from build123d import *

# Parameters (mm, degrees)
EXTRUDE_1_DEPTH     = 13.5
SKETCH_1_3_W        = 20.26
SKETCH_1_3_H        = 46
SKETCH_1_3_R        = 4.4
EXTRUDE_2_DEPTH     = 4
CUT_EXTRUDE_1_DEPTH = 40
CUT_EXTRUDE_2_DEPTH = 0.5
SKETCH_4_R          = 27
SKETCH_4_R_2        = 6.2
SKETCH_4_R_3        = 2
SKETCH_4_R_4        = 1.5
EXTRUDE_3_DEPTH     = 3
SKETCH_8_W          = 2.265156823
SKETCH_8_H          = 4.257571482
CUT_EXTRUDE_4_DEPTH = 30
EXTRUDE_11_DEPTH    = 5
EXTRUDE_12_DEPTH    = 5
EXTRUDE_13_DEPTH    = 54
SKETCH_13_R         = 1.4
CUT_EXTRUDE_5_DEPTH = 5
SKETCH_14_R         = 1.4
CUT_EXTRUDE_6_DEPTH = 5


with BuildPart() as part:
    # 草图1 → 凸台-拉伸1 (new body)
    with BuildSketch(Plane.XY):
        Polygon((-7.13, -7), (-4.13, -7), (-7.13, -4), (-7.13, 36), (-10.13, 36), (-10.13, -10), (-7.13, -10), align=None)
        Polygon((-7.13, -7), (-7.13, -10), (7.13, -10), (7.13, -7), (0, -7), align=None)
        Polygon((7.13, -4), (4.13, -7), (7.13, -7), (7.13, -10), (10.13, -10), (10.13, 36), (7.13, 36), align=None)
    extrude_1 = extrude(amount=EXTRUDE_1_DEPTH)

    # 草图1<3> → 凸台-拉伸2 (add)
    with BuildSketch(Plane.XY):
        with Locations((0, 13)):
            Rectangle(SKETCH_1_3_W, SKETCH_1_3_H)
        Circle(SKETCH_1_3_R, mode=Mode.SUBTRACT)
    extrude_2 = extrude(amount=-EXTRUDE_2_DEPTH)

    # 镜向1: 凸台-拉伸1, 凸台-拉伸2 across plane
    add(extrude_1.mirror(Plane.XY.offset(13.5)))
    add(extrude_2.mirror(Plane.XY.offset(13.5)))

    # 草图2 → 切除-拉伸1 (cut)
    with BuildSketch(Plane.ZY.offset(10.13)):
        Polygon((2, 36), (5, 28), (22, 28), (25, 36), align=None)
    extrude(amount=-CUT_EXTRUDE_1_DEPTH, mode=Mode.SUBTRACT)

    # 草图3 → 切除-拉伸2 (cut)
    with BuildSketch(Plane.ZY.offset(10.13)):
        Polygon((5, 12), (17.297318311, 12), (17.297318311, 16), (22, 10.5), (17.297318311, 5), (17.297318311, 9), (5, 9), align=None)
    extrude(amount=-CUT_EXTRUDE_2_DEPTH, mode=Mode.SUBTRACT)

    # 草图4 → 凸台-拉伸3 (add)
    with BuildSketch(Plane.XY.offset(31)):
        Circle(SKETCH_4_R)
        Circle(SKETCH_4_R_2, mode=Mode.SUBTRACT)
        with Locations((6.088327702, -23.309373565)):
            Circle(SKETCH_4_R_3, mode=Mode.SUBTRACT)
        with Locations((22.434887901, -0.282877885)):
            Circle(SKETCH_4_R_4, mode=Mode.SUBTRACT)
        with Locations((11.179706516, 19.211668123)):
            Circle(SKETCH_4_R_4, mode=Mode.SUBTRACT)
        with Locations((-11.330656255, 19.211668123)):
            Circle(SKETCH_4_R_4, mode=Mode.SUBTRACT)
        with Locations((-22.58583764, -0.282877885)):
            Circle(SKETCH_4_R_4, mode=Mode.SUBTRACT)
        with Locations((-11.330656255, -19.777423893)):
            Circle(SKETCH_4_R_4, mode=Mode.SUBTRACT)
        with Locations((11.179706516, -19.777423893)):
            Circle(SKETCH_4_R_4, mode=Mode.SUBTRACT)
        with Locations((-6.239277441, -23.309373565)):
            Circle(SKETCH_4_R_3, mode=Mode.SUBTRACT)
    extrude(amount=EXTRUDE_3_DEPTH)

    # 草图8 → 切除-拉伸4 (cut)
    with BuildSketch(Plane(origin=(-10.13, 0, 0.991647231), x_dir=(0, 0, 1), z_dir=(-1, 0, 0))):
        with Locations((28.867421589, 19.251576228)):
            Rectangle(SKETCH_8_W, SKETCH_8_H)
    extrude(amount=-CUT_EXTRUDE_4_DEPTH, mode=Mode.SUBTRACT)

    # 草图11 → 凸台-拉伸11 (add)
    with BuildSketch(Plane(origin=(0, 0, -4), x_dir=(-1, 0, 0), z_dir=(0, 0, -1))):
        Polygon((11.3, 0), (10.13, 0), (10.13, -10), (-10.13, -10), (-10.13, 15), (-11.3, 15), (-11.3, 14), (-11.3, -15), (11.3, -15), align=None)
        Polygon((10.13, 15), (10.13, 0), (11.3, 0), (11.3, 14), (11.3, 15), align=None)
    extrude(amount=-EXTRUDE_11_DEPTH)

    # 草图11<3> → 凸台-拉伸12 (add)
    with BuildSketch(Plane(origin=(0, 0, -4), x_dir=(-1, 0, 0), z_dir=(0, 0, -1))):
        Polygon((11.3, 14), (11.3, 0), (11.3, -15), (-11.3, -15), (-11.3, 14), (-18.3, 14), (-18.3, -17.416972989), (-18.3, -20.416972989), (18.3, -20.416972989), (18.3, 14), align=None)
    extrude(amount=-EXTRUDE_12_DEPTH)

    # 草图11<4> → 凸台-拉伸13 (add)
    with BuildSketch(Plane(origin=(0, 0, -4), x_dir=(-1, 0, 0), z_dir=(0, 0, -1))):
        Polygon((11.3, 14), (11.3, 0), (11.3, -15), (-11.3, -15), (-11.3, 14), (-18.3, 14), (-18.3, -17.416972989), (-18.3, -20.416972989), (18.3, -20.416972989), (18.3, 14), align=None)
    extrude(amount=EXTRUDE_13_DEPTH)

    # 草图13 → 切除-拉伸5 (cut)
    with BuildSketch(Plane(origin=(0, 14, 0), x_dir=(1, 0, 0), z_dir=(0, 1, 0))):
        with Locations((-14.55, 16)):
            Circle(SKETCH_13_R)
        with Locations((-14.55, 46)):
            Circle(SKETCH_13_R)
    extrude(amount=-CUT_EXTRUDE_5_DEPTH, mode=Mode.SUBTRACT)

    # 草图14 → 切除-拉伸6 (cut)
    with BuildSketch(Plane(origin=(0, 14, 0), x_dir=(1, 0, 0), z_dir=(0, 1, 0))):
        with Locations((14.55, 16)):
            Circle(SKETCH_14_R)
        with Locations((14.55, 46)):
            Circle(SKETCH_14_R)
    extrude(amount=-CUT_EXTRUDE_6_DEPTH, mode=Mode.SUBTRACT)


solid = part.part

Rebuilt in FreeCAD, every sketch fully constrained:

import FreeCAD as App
import Part
import Sketcher
Q = App.Units.Quantity

doc = App.newDocument("Part")
body = doc.addObject("PartDesign::Body", "Body")

# Sketch on XY plane
sketch1 = body.newObject("Sketcher::SketchObject", "Sketch")
sketch1.AttachmentSupport = (doc.getObject("XY_Plane"), [""])
sketch1.MapMode = "FlatFace"
sketch1.addGeometry([
    Part.LineSegment(App.Vector(-4.1, -7, 0), App.Vector(-7.1, -4, 0)),  # 0
    Part.LineSegment(App.Vector(-7.1, -4, 0), App.Vector(-7.1, 36, 0)),  # 1
    Part.LineSegment(App.Vector(-7.1, 36, 0), App.Vector(-10.1, 36, 0)),  # 2
    Part.LineSegment(App.Vector(-10.1, 36, 0), App.Vector(-10.1, -10, 0)),  # 3
    Part.LineSegment(App.Vector(-10.1, -10, 0), App.Vector(10.1, -10, 0)),  # 4
    Part.LineSegment(App.Vector(10.1, -10, 0), App.Vector(10.1, 36, 0)),  # 5
    Part.LineSegment(App.Vector(10.1, 36, 0), App.Vector(7.1, 36, 0)),  # 6
    Part.LineSegment(App.Vector(7.1, 36, 0), App.Vector(7.1, -4, 0)),  # 7
    Part.LineSegment(App.Vector(7.1, -4, 0), App.Vector(4.1, -7, 0)),  # 8
    Part.LineSegment(App.Vector(4.1, -7, 0), App.Vector(-4.1, -7, 0)),  # 9
], False)
sketch1.addConstraint([
    Sketcher.Constraint("Coincident", 0, 2, 1, 1),
    Sketcher.Constraint("Coincident", 1, 2, 2, 1),
    Sketcher.Constraint("Coincident", 2, 2, 3, 1),
    Sketcher.Constraint("Coincident", 3, 2, 4, 1),
    Sketcher.Constraint("Coincident", 4, 2, 5, 1),
    Sketcher.Constraint("Coincident", 5, 2, 6, 1),
    Sketcher.Constraint("Coincident", 6, 2, 7, 1),
    Sketcher.Constraint("Coincident", 7, 2, 8, 1),
    Sketcher.Constraint("Coincident", 8, 2, 9, 1),
    Sketcher.Constraint("Coincident", 9, 2, 0, 1),
    Sketcher.Constraint("Vertical", 1),
    Sketcher.Constraint("Horizontal", 2),
    Sketcher.Constraint("Vertical", 3),
    Sketcher.Constraint("Horizontal", 4),
    Sketcher.Constraint("Vertical", 5),
    Sketcher.Constraint("Horizontal", 6),
    Sketcher.Constraint("Vertical", 7),
    Sketcher.Constraint("Horizontal", 9),
    Sketcher.Constraint("Symmetric", 2, 2, 5, 2, -2),
    Sketcher.Constraint("Symmetric", 0, 2, 7, 2, -2),
    Sketcher.Constraint("Perpendicular", 0, 8),
    Sketcher.Constraint("Equal", 0, 8),
    Sketcher.Constraint("DistanceX", 2, 2, 2, 1, Q("3 mm")),
    Sketcher.Constraint("DistanceY", 1, 1, 1, 2, Q("40 mm")),
    Sketcher.Constraint("DistanceY", 3, 2, 3, 1, Q("46 mm")),
    Sketcher.Constraint("DistanceY", 0, 2, -1, 1, Q("4 mm")),
    Sketcher.Constraint("DistanceY", 8, 2, -1, 1, Q("7 mm")),
    Sketcher.Constraint("DistanceX", 4, 1, 4, 2, Q("20.26 mm")),
])
pad1 = body.newObject("PartDesign::Pad", "Pad")
pad1.Profile = sketch1
pad1.Length = 13.5

# Sketch on XY plane
sketch2 = body.newObject("Sketcher::SketchObject", "Sketch001")
sketch2.AttachmentSupport = (doc.getObject("XY_Plane"), [""])
sketch2.MapMode = "FlatFace"
sketch2.addGeometry([
    Part.LineSegment(App.Vector(-10.1, 36, 0), App.Vector(-10.1, -10, 0)),  # 0
    Part.LineSegment(App.Vector(-10.1, -10, 0), App.Vector(10.1, -10, 0)),  # 1
    Part.LineSegment(App.Vector(10.1, -10, 0), App.Vector(10.1, 36, 0)),  # 2
    Part.LineSegment(App.Vector(10.1, 36, 0), App.Vector(-10.1, 36, 0)),  # 3
    Part.Circle(App.Vector(0, 0, 0), App.Vector(0, 0, 1), 4.4),  # 4
], False)
sketch2.addConstraint([
    Sketcher.Constraint("Coincident", 0, 2, 1, 1),
    Sketcher.Constraint("Coincident", 1, 2, 2, 1),
    Sketcher.Constraint("Coincident", 2, 2, 3, 1),
    Sketcher.Constraint("Coincident", 3, 2, 0, 1),
    Sketcher.Constraint("Vertical", 0),
    Sketcher.Constraint("Horizontal", 1),
    Sketcher.Constraint("Vertical", 2),
    Sketcher.Constraint("Horizontal", 3),
    Sketcher.Constraint("Coincident", 4, 3, -1, 1),
    Sketcher.Constraint("Diameter", 4, Q("8.8 mm")),
    Sketcher.Constraint("DistanceY", 0, 2, 0, 1, Q("46 mm")),
    Sketcher.Constraint("DistanceY", 0, 2, -1, 1, Q("10 mm")),
    Sketcher.Constraint("DistanceX", 1, 1, 1, 2, Q("20.26 mm")),
    Sketcher.Constraint("DistanceX", 0, 2, -1, 1, Q("10.13 mm")),
])
pad2 = body.newObject("PartDesign::Pad", "Pad001")
pad2.Profile = sketch2
pad2.Length = 4
pad2.Reversed = True
doc.recompute()

datumplane = body.newObject("PartDesign::Plane", "DatumPlane")
datumplane.AttachmentSupport = (doc.getObject("XY_Plane"), [""])
datumplane.MapMode = "FlatFace"
datumplane.AttachmentOffset = App.Placement(App.Vector(0, 0, 13.5), App.Rotation())
mirrored = body.newObject("PartDesign::Mirrored", "Mirrored")
mirrored.Originals = [pad1, pad2]
mirrored.MirrorPlane = (datumplane, [""])
body.Tip = mirrored

# Sketch on YZ plane
sketch3 = body.newObject("Sketcher::SketchObject", "Sketch002")
sketch3.AttachmentSupport = (doc.getObject("YZ_Plane"), [""])
sketch3.MapMode = "FlatFace"
sketch3.AttachmentOffset = App.Placement(App.Vector(0, 0, -10.13), App.Rotation())
sketch3.addGeometry([
    Part.LineSegment(App.Vector(36, 2, 0), App.Vector(28, 5, 0)),
    Part.LineSegment(App.Vector(28, 5, 0), App.Vector(28, 22, 0)),
    Part.LineSegment(App.Vector(28, 22, 0), App.Vector(36, 25, 0)),
    Part.LineSegment(App.Vector(36, 25, 0), App.Vector(36, 2, 0)),
], False)
sketch3.addConstraint([
    Sketcher.Constraint("Coincident", 0, 2, 1, 1),
    Sketcher.Constraint("Coincident", 1, 2, 2, 1),
    Sketcher.Constraint("Coincident", 2, 2, 3, 1),
    Sketcher.Constraint("Coincident", 3, 2, 0, 1),
    Sketcher.Constraint("Vertical", 1),
    Sketcher.Constraint("Vertical", 3),
    Sketcher.Constraint("Equal", 0, 2),
    Sketcher.Constraint("DistanceY", 1, 1, 1, 2, Q("17 mm")),
    Sketcher.Constraint("DistanceY", 3, 2, 3, 1, Q("23 mm")),
    Sketcher.Constraint("DistanceX", -1, 1, 0, 2, Q("28 mm")),
    Sketcher.Constraint("DistanceY", -1, 1, 0, 2, Q("5 mm")),
    Sketcher.Constraint("DistanceX", -1, 1, 2, 2, Q("36 mm")),
])
pocket1 = body.newObject("PartDesign::Pocket", "Pocket")
pocket1.Profile = sketch3
pocket1.Length = 40
pocket1.Reversed = True

# Sketch on YZ plane
sketch4 = body.newObject("Sketcher::SketchObject", "Sketch003")
sketch4.AttachmentSupport = (doc.getObject("YZ_Plane"), [""])
sketch4.MapMode = "FlatFace"
sketch4.AttachmentOffset = App.Placement(App.Vector(0, 0, -10.13), App.Rotation())
sketch4.addGeometry([
    Part.LineSegment(App.Vector(12, 17.3, 0), App.Vector(12, 5, 0)),  # 0
    Part.LineSegment(App.Vector(12, 5, 0), App.Vector(9, 5, 0)),  # 1
    Part.LineSegment(App.Vector(9, 5, 0), App.Vector(9, 17.3, 0)),  # 2
    Part.LineSegment(App.Vector(9, 17.3, 0), App.Vector(5, 17.3, 0)),  # 3
    Part.LineSegment(App.Vector(5, 17.3, 0), App.Vector(10.5, 22, 0)),  # 4
    Part.LineSegment(App.Vector(10.5, 22, 0), App.Vector(16, 17.3, 0)),  # 5
    Part.LineSegment(App.Vector(16, 17.3, 0), App.Vector(12, 17.3, 0)),  # 6
], False)
sketch4.addConstraint([
    Sketcher.Constraint("Coincident", 0, 2, 1, 1),
    Sketcher.Constraint("Coincident", 1, 2, 2, 1),
    Sketcher.Constraint("Coincident", 2, 2, 3, 1),
    Sketcher.Constraint("Coincident", 3, 2, 4, 1),
    Sketcher.Constraint("Coincident", 4, 2, 5, 1),
    Sketcher.Constraint("Coincident", 5, 2, 6, 1),
    Sketcher.Constraint("Coincident", 6, 2, 0, 1),
    Sketcher.Constraint("Vertical", 0),
    Sketcher.Constraint("Horizontal", 1),
    Sketcher.Constraint("Vertical", 2),
    Sketcher.Constraint("Horizontal", 3),
    Sketcher.Constraint("Horizontal", 6),
    Sketcher.Constraint("Horizontal", 3, 2, 5, 2),
    Sketcher.Constraint("Equal", 3, 6),
    Sketcher.Constraint("Equal", 4, 5),
    Sketcher.Constraint("DistanceX", 1, 2, 1, 1, Q("3 mm")),
    Sketcher.Constraint("DistanceX", 3, 2, 3, 1, Q("4 mm")),
    Sketcher.Constraint("DistanceX", -1, 1, 0, 2, Q("12 mm")),
    Sketcher.Constraint("DistanceY", -1, 1, 0, 2, Q("5 mm")),
    Sketcher.Constraint("DistanceY", -1, 1, 4, 2, Q("22 mm")),
    Sketcher.Constraint("DistanceY", 0, 2, 0, 1, Q("12.297318 mm")),
])
pocket2 = body.newObject("PartDesign::Pocket", "Pocket001")
pocket2.Profile = sketch4
pocket2.Length = 0.5
pocket2.Reversed = True

# Sketch on XY plane
sketch5 = body.newObject("Sketcher::SketchObject", "Sketch004")
sketch5.AttachmentSupport = (doc.getObject("XY_Plane"), [""])
sketch5.MapMode = "FlatFace"
sketch5.AttachmentOffset = App.Placement(App.Vector(0, 0, 31), App.Rotation())
sketch5.addGeometry([
    Part.Circle(App.Vector(0, 0, 0), App.Vector(0, 0, 1), 27),  # 0
    Part.Circle(App.Vector(-6.2, -23.3, 0), App.Vector(0, 0, 1), 2),  # 1
    Part.Circle(App.Vector(-11.3, -19.8, 0), App.Vector(0, 0, 1), 1.5),  # 2
    Part.Circle(App.Vector(6.1, -23.3, 0), App.Vector(0, 0, 1), 2),  # 3
    Part.Circle(App.Vector(11.2, -19.8, 0), App.Vector(0, 0, 1), 1.5),  # 4
    Part.Circle(App.Vector(-22.6, -0.3, 0), App.Vector(0, 0, 1), 1.5),  # 5
    Part.Circle(App.Vector(-11.3, 19.2, 0), App.Vector(0, 0, 1), 1.5),  # 6
    Part.Circle(App.Vector(0, 0, 0), App.Vector(0, 0, 1), 6.2),  # 7
    Part.Circle(App.Vector(22.4, -0.3, 0), App.Vector(0, 0, 1), 1.5),  # 8
    Part.Circle(App.Vector(11.2, 19.2, 0), App.Vector(0, 0, 1), 1.5),  # 9
], False)
sketch5.addConstraint([
    Sketcher.Constraint("Coincident", 0, 3, -1, 1),
    Sketcher.Constraint("Coincident", 7, 3, -1, 1),
    Sketcher.Constraint("Equal", 1, 3),
    Sketcher.Constraint("Equal", 2, 4),
    Sketcher.Constraint("Equal", 4, 5),
    Sketcher.Constraint("Equal", 5, 6),
    Sketcher.Constraint("Equal", 6, 8),
    Sketcher.Constraint("Equal", 8, 9),
    Sketcher.Constraint("Horizontal", 1, 3, 3, 3),
    Sketcher.Constraint("Horizontal", 2, 3, 4, 3),
    Sketcher.Constraint("Horizontal", 5, 3, 8, 3),
    Sketcher.Constraint("Horizontal", 6, 3, 9, 3),
    Sketcher.Constraint("Vertical", 2, 3, 6, 3),
    Sketcher.Constraint("Vertical", 4, 3, 9, 3),
    Sketcher.Constraint("Diameter", 0, Q("54 mm")),
    Sketcher.Constraint("Diameter", 1, Q("4 mm")),
    Sketcher.Constraint("Diameter", 2, Q("3 mm")),
    Sketcher.Constraint("Diameter", 7, Q("12.4 mm")),
    Sketcher.Constraint("DistanceY", -1, 1, 6, 3, Q("19.211668 mm")),
    Sketcher.Constraint("DistanceX", 2, 3, 1, 3, Q("5.091379 mm")),
    Sketcher.Constraint("DistanceY", 1, 3, 2, 3, Q("3.53195 mm")),
    Sketcher.Constraint("DistanceX", 3, 3, 4, 3, Q("5.091379 mm")),
    Sketcher.Constraint("DistanceX", 5, 3, 2, 3, Q("11.255181 mm")),
    Sketcher.Constraint("DistanceY", 1, 3, 6, 3, Q("42.521042 mm")),
    Sketcher.Constraint("DistanceX", 4, 3, 8, 3, Q("11.255181 mm")),
    Sketcher.Constraint("DistanceX", 1, 3, -1, 1, Q("6.239277 mm")),
    Sketcher.Constraint("DistanceX", -1, 1, 3, 3, Q("6.088328 mm")),
    Sketcher.Constraint("DistanceY", 5, 3, -1, 1, Q("0.282878 mm")),
])
pad3 = body.newObject("PartDesign::Pad", "Pad002")
pad3.Profile = sketch5
pad3.Length = 3

# Sketch on YZ plane
sketch6 = body.newObject("Sketcher::SketchObject", "Sketch005")
sketch6.AttachmentSupport = (doc.getObject("YZ_Plane"), [""])
sketch6.MapMode = "FlatFace"
sketch6.AttachmentOffset = App.Placement(App.Vector(0, 0, -10.13), App.Rotation())
sketch6.addGeometry([
    Part.LineSegment(App.Vector(21.4, 28.7, 0), App.Vector(17.1, 28.7, 0)),
    Part.LineSegment(App.Vector(17.1, 28.7, 0), App.Vector(17.1, 31, 0)),
    Part.LineSegment(App.Vector(17.1, 31, 0), App.Vector(21.4, 31, 0)),
    Part.LineSegment(App.Vector(21.4, 31, 0), App.Vector(21.4, 28.7, 0)),
], False)
sketch6.addConstraint([
    Sketcher.Constraint("Coincident", 0, 2, 1, 1),
    Sketcher.Constraint("Coincident", 1, 2, 2, 1),
    Sketcher.Constraint("Coincident", 2, 2, 3, 1),
    Sketcher.Constraint("Coincident", 3, 2, 0, 1),
    Sketcher.Constraint("Horizontal", 0),
    Sketcher.Constraint("Vertical", 1),
    Sketcher.Constraint("Horizontal", 2),
    Sketcher.Constraint("Vertical", 3),
    Sketcher.Constraint("DistanceX", 0, 2, 0, 1, Q("4.257571 mm")),
    Sketcher.Constraint("DistanceY", 1, 1, 1, 2, Q("2.265157 mm")),
    Sketcher.Constraint("DistanceX", -1, 1, 0, 2, Q("17.12279 mm")),
    Sketcher.Constraint("DistanceY", -1, 1, 0, 2, Q("28.72649 mm")),
])
pocket3 = body.newObject("PartDesign::Pocket", "Pocket002")
pocket3.Profile = sketch6
pocket3.Length = 30
pocket3.Reversed = True

# Sketch on XY plane
sketch7 = body.newObject("Sketcher::SketchObject", "Sketch006")
sketch7.AttachmentSupport = (doc.getObject("XY_Plane"), [""])
sketch7.MapMode = "FlatFace"
sketch7.AttachmentOffset = App.Placement(App.Vector(0, 0, -4), App.Rotation())
sketch7.addGeometry([
    Part.LineSegment(App.Vector(-10.1, -10, 0), App.Vector(10.1, -10, 0)),  # 0
    Part.LineSegment(App.Vector(10.1, -10, 0), App.Vector(10.1, 15, 0)),  # 1
    Part.LineSegment(App.Vector(10.1, 15, 0), App.Vector(11.3, 15, 0)),  # 2
    Part.LineSegment(App.Vector(11.3, 15, 0), App.Vector(11.3, -15, 0)),  # 3
    Part.LineSegment(App.Vector(11.3, -15, 0), App.Vector(-11.3, -15, 0)),  # 4
    Part.LineSegment(App.Vector(-11.3, -15, 0), App.Vector(-11.3, 15, 0)),  # 5
    Part.LineSegment(App.Vector(-11.3, 15, 0), App.Vector(-10.1, 15, 0)),  # 6
    Part.LineSegment(App.Vector(-10.1, 15, 0), App.Vector(-10.1, -10, 0)),  # 7
], False)
sketch7.addConstraint([
    Sketcher.Constraint("Coincident", 0, 2, 1, 1),
    Sketcher.Constraint("Coincident", 1, 2, 2, 1),
    Sketcher.Constraint("Coincident", 2, 2, 3, 1),
    Sketcher.Constraint("Coincident", 3, 2, 4, 1),
    Sketcher.Constraint("Coincident", 4, 2, 5, 1),
    Sketcher.Constraint("Coincident", 5, 2, 6, 1),
    Sketcher.Constraint("Coincident", 6, 2, 7, 1),
    Sketcher.Constraint("Coincident", 7, 2, 0, 1),
    Sketcher.Constraint("Horizontal", 0),
    Sketcher.Constraint("Vertical", 1),
    Sketcher.Constraint("Horizontal", 2),
    Sketcher.Constraint("Vertical", 3),
    Sketcher.Constraint("Horizontal", 4),
    Sketcher.Constraint("Vertical", 5),
    Sketcher.Constraint("Horizontal", 6),
    Sketcher.Constraint("Vertical", 7),
    Sketcher.Constraint("Symmetric", 2, 2, 4, 2, -1, 1),
    Sketcher.Constraint("Symmetric", 1, 2, 6, 2, -2),
    Sketcher.Constraint("DistanceY", 1, 1, 1, 2, Q("25 mm")),
    Sketcher.Constraint("DistanceY", 3, 2, 3, 1, Q("30 mm")),
    Sketcher.Constraint("DistanceX", 4, 2, 4, 1, Q("22.6 mm")),
    Sketcher.Constraint("DistanceX", 0, 1, 0, 2, Q("20.26 mm")),
])
pad4 = body.newObject("PartDesign::Pad", "Pad003")
pad4.Profile = sketch7
pad4.Length = 5

# Sketch on XY plane
sketch8 = body.newObject("Sketcher::SketchObject", "Sketch007")
sketch8.AttachmentSupport = (doc.getObject("XY_Plane"), [""])
sketch8.MapMode = "FlatFace"
sketch8.AttachmentOffset = App.Placement(App.Vector(0, 0, -4), App.Rotation())
sketch8.addGeometry([
    Part.LineSegment(App.Vector(-11, 14, 0), App.Vector(-11, -15, 0)),  # 0
    Part.LineSegment(App.Vector(-11, -15, 0), App.Vector(11, -15, 0)),  # 1
    Part.LineSegment(App.Vector(11, -15, 0), App.Vector(11, 14, 0)),  # 2
    Part.LineSegment(App.Vector(11, 14, 0), App.Vector(18, 14, 0)),  # 3
    Part.LineSegment(App.Vector(18, 14, 0), App.Vector(18, -20, 0)),  # 4
    Part.LineSegment(App.Vector(18, -20, 0), App.Vector(-18, -20, 0)),  # 5
    Part.LineSegment(App.Vector(-18, -20, 0), App.Vector(-18, 14, 0)),  # 6
    Part.LineSegment(App.Vector(-18, 14, 0), App.Vector(-11, 14, 0)),  # 7
], False)
sketch8.addConstraint([
    Sketcher.Constraint("Coincident", 0, 2, 1, 1),
    Sketcher.Constraint("Coincident", 1, 2, 2, 1),
    Sketcher.Constraint("Coincident", 2, 2, 3, 1),
    Sketcher.Constraint("Coincident", 3, 2, 4, 1),
    Sketcher.Constraint("Coincident", 4, 2, 5, 1),
    Sketcher.Constraint("Coincident", 5, 2, 6, 1),
    Sketcher.Constraint("Coincident", 6, 2, 7, 1),
    Sketcher.Constraint("Coincident", 7, 2, 0, 1),
    Sketcher.Constraint("Vertical", 0),
    Sketcher.Constraint("Horizontal", 1),
    Sketcher.Constraint("Vertical", 2),
    Sketcher.Constraint("Horizontal", 3),
    Sketcher.Constraint("Vertical", 4),
    Sketcher.Constraint("Horizontal", 5),
    Sketcher.Constraint("Vertical", 6),
    Sketcher.Constraint("Horizontal", 7),
    Sketcher.Constraint("Symmetric", 3, 2, 6, 2, -2),
    Sketcher.Constraint("Equal", 3, 7),
    Sketcher.Constraint("DistanceX", 3, 1, 3, 2, Q("7 mm")),
    Sketcher.Constraint("DistanceY", 0, 2, 0, 1, Q("29 mm")),
    Sketcher.Constraint("DistanceX", 1, 1, 1, 2, Q("22.6 mm")),
    Sketcher.Constraint("DistanceY", 0, 2, -1, 1, Q("15 mm")),
    Sketcher.Constraint("DistanceY", 4, 2, 4, 1, Q("34.416973 mm")),
])
pad5 = body.newObject("PartDesign::Pad", "Pad004")
pad5.Profile = sketch8
pad5.Length = 5

# Sketch on XY plane
sketch9 = body.newObject("Sketcher::SketchObject", "Sketch008")
sketch9.AttachmentSupport = (doc.getObject("XY_Plane"), [""])
sketch9.MapMode = "FlatFace"
sketch9.AttachmentOffset = App.Placement(App.Vector(0, 0, -4), App.Rotation())
sketch9.addGeometry([
    Part.LineSegment(App.Vector(-11, 14, 0), App.Vector(-11, -15, 0)),  # 0
    Part.LineSegment(App.Vector(-11, -15, 0), App.Vector(11, -15, 0)),  # 1
    Part.LineSegment(App.Vector(11, -15, 0), App.Vector(11, 14, 0)),  # 2
    Part.LineSegment(App.Vector(11, 14, 0), App.Vector(18, 14, 0)),  # 3
    Part.LineSegment(App.Vector(18, 14, 0), App.Vector(18, -20, 0)),  # 4
    Part.LineSegment(App.Vector(18, -20, 0), App.Vector(-18, -20, 0)),  # 5
    Part.LineSegment(App.Vector(-18, -20, 0), App.Vector(-18, 14, 0)),  # 6
    Part.LineSegment(App.Vector(-18, 14, 0), App.Vector(-11, 14, 0)),  # 7
], False)
sketch9.addConstraint([
    Sketcher.Constraint("Coincident", 0, 2, 1, 1),
    Sketcher.Constraint("Coincident", 1, 2, 2, 1),
    Sketcher.Constraint("Coincident", 2, 2, 3, 1),
    Sketcher.Constraint("Coincident", 3, 2, 4, 1),
    Sketcher.Constraint("Coincident", 4, 2, 5, 1),
    Sketcher.Constraint("Coincident", 5, 2, 6, 1),
    Sketcher.Constraint("Coincident", 6, 2, 7, 1),
    Sketcher.Constraint("Coincident", 7, 2, 0, 1),
    Sketcher.Constraint("Vertical", 0),
    Sketcher.Constraint("Horizontal", 1),
    Sketcher.Constraint("Vertical", 2),
    Sketcher.Constraint("Horizontal", 3),
    Sketcher.Constraint("Vertical", 4),
    Sketcher.Constraint("Horizontal", 5),
    Sketcher.Constraint("Vertical", 6),
    Sketcher.Constraint("Horizontal", 7),
    Sketcher.Constraint("Symmetric", 3, 2, 6, 2, -2),
    Sketcher.Constraint("Equal", 3, 7),
    Sketcher.Constraint("DistanceX", 3, 1, 3, 2, Q("7 mm")),
    Sketcher.Constraint("DistanceY", 0, 2, 0, 1, Q("29 mm")),
    Sketcher.Constraint("DistanceX", 1, 1, 1, 2, Q("22.6 mm")),
    Sketcher.Constraint("DistanceY", 0, 2, -1, 1, Q("15 mm")),
    Sketcher.Constraint("DistanceY", 4, 2, 4, 1, Q("34.416973 mm")),
])
pad6 = body.newObject("PartDesign::Pad", "Pad005")
pad6.Profile = sketch9
pad6.Length = 54
pad6.Reversed = True

# Sketch on XZ plane
sketch10 = body.newObject("Sketcher::SketchObject", "Sketch009")
sketch10.AttachmentSupport = (doc.getObject("XZ_Plane"), [""])
sketch10.MapMode = "FlatFace"
sketch10.AttachmentOffset = App.Placement(App.Vector(0, 0, -14), App.Rotation())
sketch10.addGeometry([
    Part.Circle(App.Vector(-14.6, -16, 0), App.Vector(0, 0, 1), 1.4),
    Part.Circle(App.Vector(-14.6, -46, 0), App.Vector(0, 0, 1), 1.4),
], False)
sketch10.addConstraint([
    Sketcher.Constraint("Equal", 0, 1),
    Sketcher.Constraint("Vertical", 0, 3, 1, 3),
    Sketcher.Constraint("Diameter", 0, Q("2.8 mm")),
    Sketcher.Constraint("DistanceY", 0, 3, -1, 1, Q("16 mm")),
    Sketcher.Constraint("DistanceY", 1, 3, -1, 1, Q("46 mm")),
    Sketcher.Constraint("DistanceX", 0, 3, -1, 1, Q("14.55 mm")),
])
pocket4 = body.newObject("PartDesign::Pocket", "Pocket003")
pocket4.Profile = sketch10
pocket4.Length = 5
pocket4.Reversed = True

# Sketch on XZ plane
sketch11 = body.newObject("Sketcher::SketchObject", "Sketch010")
sketch11.AttachmentSupport = (doc.getObject("XZ_Plane"), [""])
sketch11.MapMode = "FlatFace"
sketch11.AttachmentOffset = App.Placement(App.Vector(0, 0, -14), App.Rotation())
sketch11.addGeometry([
    Part.Circle(App.Vector(14.6, -16, 0), App.Vector(0, 0, 1), 1.4),
    Part.Circle(App.Vector(14.6, -46, 0), App.Vector(0, 0, 1), 1.4),
], False)
sketch11.addConstraint([
    Sketcher.Constraint("Equal", 0, 1),
    Sketcher.Constraint("Vertical", 0, 3, 1, 3),
    Sketcher.Constraint("Diameter", 0, Q("2.8 mm")),
    Sketcher.Constraint("DistanceY", 0, 3, -1, 1, Q("16 mm")),
    Sketcher.Constraint("DistanceY", 1, 3, -1, 1, Q("46 mm")),
    Sketcher.Constraint("DistanceX", -1, 1, 0, 3, Q("14.55 mm")),
])
pocket5 = body.newObject("PartDesign::Pocket", "Pocket004")
pocket5.Profile = sketch11
pocket5.Length = 5
pocket5.Reversed = True

doc.recompute()
